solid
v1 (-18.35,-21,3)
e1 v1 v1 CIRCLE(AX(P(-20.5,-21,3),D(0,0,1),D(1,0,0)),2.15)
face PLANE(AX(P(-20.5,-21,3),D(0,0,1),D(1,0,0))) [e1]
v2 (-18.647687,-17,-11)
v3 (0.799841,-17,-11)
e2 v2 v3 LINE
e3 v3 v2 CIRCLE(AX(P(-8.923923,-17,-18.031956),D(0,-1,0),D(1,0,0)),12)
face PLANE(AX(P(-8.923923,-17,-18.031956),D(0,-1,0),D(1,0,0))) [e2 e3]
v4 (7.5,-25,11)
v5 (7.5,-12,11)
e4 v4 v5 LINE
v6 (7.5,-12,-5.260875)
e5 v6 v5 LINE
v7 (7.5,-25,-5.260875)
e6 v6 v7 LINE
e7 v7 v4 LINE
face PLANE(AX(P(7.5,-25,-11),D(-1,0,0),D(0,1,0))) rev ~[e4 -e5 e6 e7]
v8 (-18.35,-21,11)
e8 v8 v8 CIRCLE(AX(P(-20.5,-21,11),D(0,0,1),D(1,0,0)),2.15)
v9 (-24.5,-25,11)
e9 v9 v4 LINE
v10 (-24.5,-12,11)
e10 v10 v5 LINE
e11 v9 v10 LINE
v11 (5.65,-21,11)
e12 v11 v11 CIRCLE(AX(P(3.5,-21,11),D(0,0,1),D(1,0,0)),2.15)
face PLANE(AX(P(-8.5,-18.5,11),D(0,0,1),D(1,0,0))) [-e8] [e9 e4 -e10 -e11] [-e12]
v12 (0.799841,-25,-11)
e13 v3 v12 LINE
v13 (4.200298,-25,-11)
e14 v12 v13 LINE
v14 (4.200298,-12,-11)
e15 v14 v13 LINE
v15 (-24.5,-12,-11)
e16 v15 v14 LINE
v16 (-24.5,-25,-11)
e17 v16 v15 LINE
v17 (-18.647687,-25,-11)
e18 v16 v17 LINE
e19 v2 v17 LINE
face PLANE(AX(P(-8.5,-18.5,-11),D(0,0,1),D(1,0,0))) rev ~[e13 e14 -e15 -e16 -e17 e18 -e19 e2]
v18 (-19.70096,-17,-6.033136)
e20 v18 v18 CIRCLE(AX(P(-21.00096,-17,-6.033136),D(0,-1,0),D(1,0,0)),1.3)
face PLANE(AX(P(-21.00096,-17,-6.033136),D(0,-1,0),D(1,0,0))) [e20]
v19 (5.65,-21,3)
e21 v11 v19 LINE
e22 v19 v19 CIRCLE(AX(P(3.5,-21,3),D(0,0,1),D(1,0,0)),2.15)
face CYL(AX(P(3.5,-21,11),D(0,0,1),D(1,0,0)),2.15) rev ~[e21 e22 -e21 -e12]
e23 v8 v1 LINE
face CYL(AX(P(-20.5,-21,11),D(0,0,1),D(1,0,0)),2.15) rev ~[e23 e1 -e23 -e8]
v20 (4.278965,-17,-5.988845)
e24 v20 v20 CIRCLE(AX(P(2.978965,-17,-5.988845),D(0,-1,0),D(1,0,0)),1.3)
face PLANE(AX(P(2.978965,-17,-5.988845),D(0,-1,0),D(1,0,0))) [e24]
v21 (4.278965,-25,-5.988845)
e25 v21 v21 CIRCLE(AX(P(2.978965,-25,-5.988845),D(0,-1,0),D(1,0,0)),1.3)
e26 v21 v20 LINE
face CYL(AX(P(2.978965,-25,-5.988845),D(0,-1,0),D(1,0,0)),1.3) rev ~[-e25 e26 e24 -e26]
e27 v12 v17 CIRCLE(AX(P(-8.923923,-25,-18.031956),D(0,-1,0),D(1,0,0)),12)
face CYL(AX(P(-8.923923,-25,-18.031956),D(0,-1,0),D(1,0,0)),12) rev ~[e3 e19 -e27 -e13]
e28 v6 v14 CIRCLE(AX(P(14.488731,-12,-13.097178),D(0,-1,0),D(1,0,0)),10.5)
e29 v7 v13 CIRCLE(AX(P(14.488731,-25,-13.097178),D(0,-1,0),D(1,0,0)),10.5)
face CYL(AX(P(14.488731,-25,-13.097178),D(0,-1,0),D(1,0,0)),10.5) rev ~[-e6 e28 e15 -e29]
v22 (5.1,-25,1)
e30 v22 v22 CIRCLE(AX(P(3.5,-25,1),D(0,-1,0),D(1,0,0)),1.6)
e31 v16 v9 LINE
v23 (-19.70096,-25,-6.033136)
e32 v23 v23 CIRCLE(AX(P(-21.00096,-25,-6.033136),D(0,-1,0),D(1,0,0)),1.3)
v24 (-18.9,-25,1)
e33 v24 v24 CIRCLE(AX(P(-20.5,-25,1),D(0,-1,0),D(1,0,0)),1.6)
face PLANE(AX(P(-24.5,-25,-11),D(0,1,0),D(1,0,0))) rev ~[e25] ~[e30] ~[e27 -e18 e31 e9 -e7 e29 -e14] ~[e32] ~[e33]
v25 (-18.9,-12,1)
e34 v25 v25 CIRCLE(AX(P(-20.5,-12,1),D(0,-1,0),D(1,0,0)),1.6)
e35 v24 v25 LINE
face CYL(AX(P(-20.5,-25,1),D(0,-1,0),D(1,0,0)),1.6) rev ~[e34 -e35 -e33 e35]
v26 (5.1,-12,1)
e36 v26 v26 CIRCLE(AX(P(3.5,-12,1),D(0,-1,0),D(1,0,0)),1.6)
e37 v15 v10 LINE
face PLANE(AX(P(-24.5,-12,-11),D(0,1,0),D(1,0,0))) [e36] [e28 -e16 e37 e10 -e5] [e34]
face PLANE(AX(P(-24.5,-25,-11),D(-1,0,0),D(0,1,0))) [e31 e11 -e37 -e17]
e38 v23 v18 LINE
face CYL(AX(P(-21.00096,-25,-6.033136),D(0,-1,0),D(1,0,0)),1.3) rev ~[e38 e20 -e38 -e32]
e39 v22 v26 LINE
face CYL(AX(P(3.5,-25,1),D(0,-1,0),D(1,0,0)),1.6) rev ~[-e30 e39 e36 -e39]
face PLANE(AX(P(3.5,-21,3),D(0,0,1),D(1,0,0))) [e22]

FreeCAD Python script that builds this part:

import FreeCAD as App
import Part
import Sketcher
Q = App.Units.Quantity


def add_polygon(sketch, points):
    """Adds a closed chain of lines whose ends are joined by coincident constraints."""
    first, n = sketch.GeometryCount, len(points)
    for a, b in zip(points, points[1:] + points[:1]):
        sketch.addGeometry(Part.LineSegment(App.Vector(*a, 0), App.Vector(*b, 0)), False)
    for i in range(n):
        sketch.addConstraint(Sketcher.Constraint("Coincident", first + i, 2, first + (i + 1) % n, 1))

doc = App.newDocument("Part")
params = doc.addObject("Spreadsheet::Sheet", "Params")
for row, (alias, value) in enumerate([
    ("sketch1_width", "32 mm"),
    ("sketch1_height", "13 mm"),
    ("pad1_length", "22 mm"),
    ("sketch2_diameter", "24 mm"),
    ("sketch2_diameter2", "2.6 mm"),
    ("pocket1_length", "8 mm"),
    ("sketch3_diameter", "4.3 mm"),
    ("pocket2_length", "8 mm"),
    ("sketch4_diameter", "3.2 mm"),
    ("sketch5_diameter", "21 mm"),
], start=1):
    params.set(f"A{row}", alias)
    params.set(f"B{row}", "=" + value)
    params.setAlias(f"B{row}", alias)

body = doc.addObject("PartDesign::Body", "Body")

# Sketch on XY plane
sketch1 = doc.addObject("Sketcher::SketchObject", "Sketch")
body.addObject(sketch1)
sketch1.AttachmentSupport = (doc.XY_Plane, [""])
sketch1.MapMode = "FlatFace"
sketch1.AttachmentOffset = App.Placement(App.Vector(0, 0, -11), App.Rotation())
add_polygon(sketch1, [(-24.5, -12), (-24.5, -25), (7.5, -25), (7.5, -12)])  # lines 0-3
sketch1.addConstraint([
    Sketcher.Constraint("Vertical", 0),
    Sketcher.Constraint("Horizontal", 1),
    Sketcher.Constraint("Vertical", 2),
    Sketcher.Constraint("Horizontal", 3),
    Sketcher.Constraint("DistanceX", 1, 1, 1, 2, Q("32 mm")),
    Sketcher.Constraint("DistanceY", 0, 2, 0, 1, Q("13 mm")),
    Sketcher.Constraint("DistanceY", 0, 2, -1, 1, Q("25 mm")),
    Sketcher.Constraint("DistanceX", 0, 2, -1, 1, Q("24.5 mm")),
])
sketch1.setExpression("Constraints[8]", "Params.sketch1_width")
sketch1.setExpression("Constraints[9]", "Params.sketch1_height")
pad1 = doc.addObject("PartDesign::Pad", "Pad")
body.addObject(pad1)
pad1.Profile = sketch1
pad1.setExpression("Length", "Params.pad1_length")

# Sketch on XZ plane
sketch2 = doc.addObject("Sketcher::SketchObject", "Sketch001")
body.addObject(sketch2)
sketch2.AttachmentSupport = (doc.XZ_Plane, [""])
sketch2.MapMode = "FlatFace"
sketch2.AttachmentOffset = App.Placement(App.Vector(0, 0, 25), App.Rotation())
sketch2.addGeometry([
    Part.Circle(App.Vector(-8.923923, -18.031956, 0), App.Vector(0, 0, 1), 12),
    Part.Circle(App.Vector(-21.00096, -6.033136, 0), App.Vector(0, 0, 1), 1.3),
    Part.Circle(App.Vector(2.978965, -5.988845, 0), App.Vector(0, 0, 1), 1.3),
], False)
sketch2.addConstraint([
    Sketcher.Constraint("Equal", 1, 2),
    Sketcher.Constraint("Diameter", 0, Q("24 mm")),
    Sketcher.Constraint("Diameter", 1, Q("2.6 mm")),
    Sketcher.Constraint("DistanceX", 1, 3, -1, 1, Q("21.00096 mm")),
    Sketcher.Constraint("DistanceY", 0, 3, 1, 3, Q("11.99882 mm")),
    Sketcher.Constraint("DistanceX", 0, 3, 2, 3, Q("11.902888 mm")),
    Sketcher.Constraint("DistanceY", 0, 3, 2, 3, Q("12.043111 mm")),
    Sketcher.Constraint("DistanceX", 0, 3, -1, 1, Q("8.923923 mm")),
    Sketcher.Constraint("DistanceY", 0, 3, -1, 1, Q("18.031956 mm")),
])
sketch2.setExpression("Constraints[1]", "Params.sketch2_diameter")
sketch2.setExpression("Constraints[2]", "Params.sketch2_diameter2")
pocket1 = doc.addObject("PartDesign::Pocket", "Pocket")
body.addObject(pocket1)
pocket1.Profile = sketch2
pocket1.setExpression("Length", "Params.pocket1_length")

# Sketch on XY plane
sketch3 = doc.addObject("Sketcher::SketchObject", "Sketch002")
body.addObject(sketch3)
sketch3.AttachmentSupport = (doc.XY_Plane, [""])
sketch3.MapMode = "FlatFace"
sketch3.AttachmentOffset = App.Placement(App.Vector(0, 0, 11), App.Rotation())
sketch3.addGeometry([
    Part.Circle(App.Vector(-20.5, -21, 0), App.Vector(0, 0, 1), 2.15),
    Part.Circle(App.Vector(3.5, -21, 0), App.Vector(0, 0, 1), 2.15),
], False)
sketch3.addConstraint([
    Sketcher.Constraint("Equal", 0, 1),
    Sketcher.Constraint("Horizontal", 0, 3, 1, 3),
    Sketcher.Constraint("Diameter", 0, Q("4.3 mm")),
    Sketcher.Constraint("DistanceY", 0, 3, -1, 1, Q("21 mm")),
    Sketcher.Constraint("DistanceX", 0, 3, 1, 3, Q("24 mm")),
    Sketcher.Constraint("DistanceX", 0, 3, -1, 1, Q("20.5 mm")),
])
sketch3.setExpression("Constraints[2]", "Params.sketch3_diameter")
pocket2 = doc.addObject("PartDesign::Pocket", "Pocket001")
body.addObject(pocket2)
pocket2.Profile = sketch3
pocket2.setExpression("Length", "Params.pocket2_length")

# Sketch on XZ plane
sketch4 = doc.addObject("Sketcher::SketchObject", "Sketch003")
body.addObject(sketch4)
sketch4.AttachmentSupport = (doc.XZ_Plane, [""])
sketch4.MapMode = "FlatFace"
sketch4.AttachmentOffset = App.Placement(App.Vector(0, 0, 25), App.Rotation())
sketch4.addGeometry([
    Part.Circle(App.Vector(-20.5, 1, 0), App.Vector(0, 0, 1), 1.6),
    Part.Circle(App.Vector(3.5, 1, 0), App.Vector(0, 0, 1), 1.6),
], False)
sketch4.addConstraint([
    Sketcher.Constraint("Equal", 0, 1),
    Sketcher.Constraint("Horizontal", 0, 3, 1, 3),
    Sketcher.Constraint("Diameter", 0, Q("3.2 mm")),
    Sketcher.Constraint("DistanceY", -1, 1, 0, 3, Q("1 mm")),
    Sketcher.Constraint("DistanceX", 0, 3, 1, 3, Q("24 mm")),
    Sketcher.Constraint("DistanceX", 0, 3, -1, 1, Q("20.5 mm")),
])
sketch4.setExpression("Constraints[2]", "Params.sketch4_diameter")
pocket3 = doc.addObject("PartDesign::Pocket", "Pocket002")
body.addObject(pocket3)
pocket3.Profile = sketch4
pocket3.Type = "ThroughAll"

# Sketch on XZ plane
sketch5 = doc.addObject("Sketcher::SketchObject", "Sketch004")
body.addObject(sketch5)
sketch5.AttachmentSupport = (doc.XZ_Plane, [""])
sketch5.MapMode = "FlatFace"
sketch5.AttachmentOffset = App.Placement(App.Vector(0, 0, 25), App.Rotation())
sketch5.addGeometry(Part.Circle(App.Vector(14.488731, -13.097178, 0), App.Vector(0, 0, 1), 10.5), False)
sketch5.addConstraint([
    Sketcher.Constraint("Diameter", 0, Q("21 mm")),
    Sketcher.Constraint("DistanceX", -1, 1, 0, 3, Q("14.488731 mm")),
    Sketcher.Constraint("DistanceY", 0, 3, -1, 1, Q("13.097178 mm")),
])
sketch5.setExpression("Constraints[0]", "Params.sketch5_diameter")
pocket4 = doc.addObject("PartDesign::Pocket", "Pocket003")
body.addObject(pocket4)
pocket4.Profile = sketch5
pocket4.Type = "ThroughAll"

doc.recompute()
